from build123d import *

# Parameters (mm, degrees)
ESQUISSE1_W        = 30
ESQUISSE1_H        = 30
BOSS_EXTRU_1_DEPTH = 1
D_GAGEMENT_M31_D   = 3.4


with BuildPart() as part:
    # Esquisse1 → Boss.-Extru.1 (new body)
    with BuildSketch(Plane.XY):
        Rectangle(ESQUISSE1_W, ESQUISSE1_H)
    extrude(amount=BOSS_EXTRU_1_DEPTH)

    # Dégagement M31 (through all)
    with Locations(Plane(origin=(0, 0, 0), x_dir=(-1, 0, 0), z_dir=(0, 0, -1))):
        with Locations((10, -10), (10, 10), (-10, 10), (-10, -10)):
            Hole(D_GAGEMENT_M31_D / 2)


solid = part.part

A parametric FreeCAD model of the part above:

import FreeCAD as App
import Part
import Sketcher
from FreeCAD import Vector


def add_polygon(sketch, points):
    """Adds a closed chain of lines whose ends are joined by coincident constraints."""
    first, n = sketch.GeometryCount, len(points)
    for a, b in zip(points, points[1:] + points[:1]):
        sketch.addGeometry(Part.LineSegment(App.Vector(*a, 0), App.Vector(*b, 0)), False)
    for i in range(n):
        sketch.addConstraint(Sketcher.Constraint("Coincident", first + i, 2, first + (i + 1) % n, 1))

doc = App.newDocument("Part")
body = doc.addObject("PartDesign::Body", "Body")

sketch1 = doc.addObject("Sketcher::SketchObject", "Sketch")
body.addObject(sketch1)
sketch1.AttachmentSupport = (doc.XY_Plane, [""])
sketch1.MapMode = "FlatFace"
add_polygon(sketch1, [(-15, 15), (-15, -15), (15, -15), (15, 15)])
sketch1.addConstraint(Sketcher.Constraint("Vertical", 0))
sketch1.addConstraint(Sketcher.Constraint("Horizontal", 1))
sketch1.addConstraint(Sketcher.Constraint("Vertical", 2))
sketch1.addConstraint(Sketcher.Constraint("Horizontal", 3))
sketch1.addConstraint(Sketcher.Constraint("Symmetric", 0, 2, 2, 2, -1, 1))
sketch1.addConstraint(Sketcher.Constraint("Equal", 3, 0))
sketch1.addConstraint(Sketcher.Constraint("DistanceX", 1, 1, 1, 2, 30.0))
pad1 = doc.addObject("PartDesign::Pad", "Pad")
body.addObject(pad1)
pad1.Profile = sketch1
pad1.Length = 1

sketch2 = doc.addObject("Sketcher::SketchObject", "Sketch001")
body.addObject(sketch2)
sketch2.AttachmentSupport = (doc.XY_Plane, [""])
sketch2.MapMode = "FlatFace"
sketch2.addGeometry(Part.Circle(Vector(-10, -10, 0), Vector(0, 0, 1), 1.7), False)
sketch2.addGeometry(Part.Circle(Vector(-10, 10, 0), Vector(0, 0, 1), 1.7), False)
sketch2.addGeometry(Part.Circle(Vector(10, 10, 0), Vector(0, 0, 1), 1.7), False)
sketch2.addGeometry(Part.Circle(Vector(10, -10, 0), Vector(0, 0, 1), 1.7), False)
sketch2.addConstraint(Sketcher.Constraint("Equal", 0, 1))
sketch2.addConstraint(Sketcher.Constraint("Equal", 1, 2))
sketch2.addConstraint(Sketcher.Constraint("Equal", 2, 3))
sketch2.addConstraint(Sketcher.Constraint("Symmetric", 0, 3, 2, 3, -1, 1))
sketch2.addConstraint(Sketcher.Constraint("Symmetric", 1, 3, 3, 3, -1, 1))
sketch2.addConstraint(Sketcher.Constraint("Symmetric", 1, 3, 2, 3, -2))
sketch2.addConstraint(Sketcher.Constraint("Diameter", 0, 3.4))
sketch2.addConstraint(Sketcher.Constraint("DistanceX", 0, 3, -1, 1, 10.0))
sketch2.addConstraint(Sketcher.Constraint("DistanceY", 0, 3, -1, 1, 10.0))
doc.recompute()
hole = doc.addObject("PartDesign::Hole", "Hole")
body.addObject(hole)
hole.Profile = sketch2
hole.ThreadType = "None"
hole.Diameter = 3.4
hole.DepthType = "ThroughAll"
hole.Reversed = True

doc.recompute()
